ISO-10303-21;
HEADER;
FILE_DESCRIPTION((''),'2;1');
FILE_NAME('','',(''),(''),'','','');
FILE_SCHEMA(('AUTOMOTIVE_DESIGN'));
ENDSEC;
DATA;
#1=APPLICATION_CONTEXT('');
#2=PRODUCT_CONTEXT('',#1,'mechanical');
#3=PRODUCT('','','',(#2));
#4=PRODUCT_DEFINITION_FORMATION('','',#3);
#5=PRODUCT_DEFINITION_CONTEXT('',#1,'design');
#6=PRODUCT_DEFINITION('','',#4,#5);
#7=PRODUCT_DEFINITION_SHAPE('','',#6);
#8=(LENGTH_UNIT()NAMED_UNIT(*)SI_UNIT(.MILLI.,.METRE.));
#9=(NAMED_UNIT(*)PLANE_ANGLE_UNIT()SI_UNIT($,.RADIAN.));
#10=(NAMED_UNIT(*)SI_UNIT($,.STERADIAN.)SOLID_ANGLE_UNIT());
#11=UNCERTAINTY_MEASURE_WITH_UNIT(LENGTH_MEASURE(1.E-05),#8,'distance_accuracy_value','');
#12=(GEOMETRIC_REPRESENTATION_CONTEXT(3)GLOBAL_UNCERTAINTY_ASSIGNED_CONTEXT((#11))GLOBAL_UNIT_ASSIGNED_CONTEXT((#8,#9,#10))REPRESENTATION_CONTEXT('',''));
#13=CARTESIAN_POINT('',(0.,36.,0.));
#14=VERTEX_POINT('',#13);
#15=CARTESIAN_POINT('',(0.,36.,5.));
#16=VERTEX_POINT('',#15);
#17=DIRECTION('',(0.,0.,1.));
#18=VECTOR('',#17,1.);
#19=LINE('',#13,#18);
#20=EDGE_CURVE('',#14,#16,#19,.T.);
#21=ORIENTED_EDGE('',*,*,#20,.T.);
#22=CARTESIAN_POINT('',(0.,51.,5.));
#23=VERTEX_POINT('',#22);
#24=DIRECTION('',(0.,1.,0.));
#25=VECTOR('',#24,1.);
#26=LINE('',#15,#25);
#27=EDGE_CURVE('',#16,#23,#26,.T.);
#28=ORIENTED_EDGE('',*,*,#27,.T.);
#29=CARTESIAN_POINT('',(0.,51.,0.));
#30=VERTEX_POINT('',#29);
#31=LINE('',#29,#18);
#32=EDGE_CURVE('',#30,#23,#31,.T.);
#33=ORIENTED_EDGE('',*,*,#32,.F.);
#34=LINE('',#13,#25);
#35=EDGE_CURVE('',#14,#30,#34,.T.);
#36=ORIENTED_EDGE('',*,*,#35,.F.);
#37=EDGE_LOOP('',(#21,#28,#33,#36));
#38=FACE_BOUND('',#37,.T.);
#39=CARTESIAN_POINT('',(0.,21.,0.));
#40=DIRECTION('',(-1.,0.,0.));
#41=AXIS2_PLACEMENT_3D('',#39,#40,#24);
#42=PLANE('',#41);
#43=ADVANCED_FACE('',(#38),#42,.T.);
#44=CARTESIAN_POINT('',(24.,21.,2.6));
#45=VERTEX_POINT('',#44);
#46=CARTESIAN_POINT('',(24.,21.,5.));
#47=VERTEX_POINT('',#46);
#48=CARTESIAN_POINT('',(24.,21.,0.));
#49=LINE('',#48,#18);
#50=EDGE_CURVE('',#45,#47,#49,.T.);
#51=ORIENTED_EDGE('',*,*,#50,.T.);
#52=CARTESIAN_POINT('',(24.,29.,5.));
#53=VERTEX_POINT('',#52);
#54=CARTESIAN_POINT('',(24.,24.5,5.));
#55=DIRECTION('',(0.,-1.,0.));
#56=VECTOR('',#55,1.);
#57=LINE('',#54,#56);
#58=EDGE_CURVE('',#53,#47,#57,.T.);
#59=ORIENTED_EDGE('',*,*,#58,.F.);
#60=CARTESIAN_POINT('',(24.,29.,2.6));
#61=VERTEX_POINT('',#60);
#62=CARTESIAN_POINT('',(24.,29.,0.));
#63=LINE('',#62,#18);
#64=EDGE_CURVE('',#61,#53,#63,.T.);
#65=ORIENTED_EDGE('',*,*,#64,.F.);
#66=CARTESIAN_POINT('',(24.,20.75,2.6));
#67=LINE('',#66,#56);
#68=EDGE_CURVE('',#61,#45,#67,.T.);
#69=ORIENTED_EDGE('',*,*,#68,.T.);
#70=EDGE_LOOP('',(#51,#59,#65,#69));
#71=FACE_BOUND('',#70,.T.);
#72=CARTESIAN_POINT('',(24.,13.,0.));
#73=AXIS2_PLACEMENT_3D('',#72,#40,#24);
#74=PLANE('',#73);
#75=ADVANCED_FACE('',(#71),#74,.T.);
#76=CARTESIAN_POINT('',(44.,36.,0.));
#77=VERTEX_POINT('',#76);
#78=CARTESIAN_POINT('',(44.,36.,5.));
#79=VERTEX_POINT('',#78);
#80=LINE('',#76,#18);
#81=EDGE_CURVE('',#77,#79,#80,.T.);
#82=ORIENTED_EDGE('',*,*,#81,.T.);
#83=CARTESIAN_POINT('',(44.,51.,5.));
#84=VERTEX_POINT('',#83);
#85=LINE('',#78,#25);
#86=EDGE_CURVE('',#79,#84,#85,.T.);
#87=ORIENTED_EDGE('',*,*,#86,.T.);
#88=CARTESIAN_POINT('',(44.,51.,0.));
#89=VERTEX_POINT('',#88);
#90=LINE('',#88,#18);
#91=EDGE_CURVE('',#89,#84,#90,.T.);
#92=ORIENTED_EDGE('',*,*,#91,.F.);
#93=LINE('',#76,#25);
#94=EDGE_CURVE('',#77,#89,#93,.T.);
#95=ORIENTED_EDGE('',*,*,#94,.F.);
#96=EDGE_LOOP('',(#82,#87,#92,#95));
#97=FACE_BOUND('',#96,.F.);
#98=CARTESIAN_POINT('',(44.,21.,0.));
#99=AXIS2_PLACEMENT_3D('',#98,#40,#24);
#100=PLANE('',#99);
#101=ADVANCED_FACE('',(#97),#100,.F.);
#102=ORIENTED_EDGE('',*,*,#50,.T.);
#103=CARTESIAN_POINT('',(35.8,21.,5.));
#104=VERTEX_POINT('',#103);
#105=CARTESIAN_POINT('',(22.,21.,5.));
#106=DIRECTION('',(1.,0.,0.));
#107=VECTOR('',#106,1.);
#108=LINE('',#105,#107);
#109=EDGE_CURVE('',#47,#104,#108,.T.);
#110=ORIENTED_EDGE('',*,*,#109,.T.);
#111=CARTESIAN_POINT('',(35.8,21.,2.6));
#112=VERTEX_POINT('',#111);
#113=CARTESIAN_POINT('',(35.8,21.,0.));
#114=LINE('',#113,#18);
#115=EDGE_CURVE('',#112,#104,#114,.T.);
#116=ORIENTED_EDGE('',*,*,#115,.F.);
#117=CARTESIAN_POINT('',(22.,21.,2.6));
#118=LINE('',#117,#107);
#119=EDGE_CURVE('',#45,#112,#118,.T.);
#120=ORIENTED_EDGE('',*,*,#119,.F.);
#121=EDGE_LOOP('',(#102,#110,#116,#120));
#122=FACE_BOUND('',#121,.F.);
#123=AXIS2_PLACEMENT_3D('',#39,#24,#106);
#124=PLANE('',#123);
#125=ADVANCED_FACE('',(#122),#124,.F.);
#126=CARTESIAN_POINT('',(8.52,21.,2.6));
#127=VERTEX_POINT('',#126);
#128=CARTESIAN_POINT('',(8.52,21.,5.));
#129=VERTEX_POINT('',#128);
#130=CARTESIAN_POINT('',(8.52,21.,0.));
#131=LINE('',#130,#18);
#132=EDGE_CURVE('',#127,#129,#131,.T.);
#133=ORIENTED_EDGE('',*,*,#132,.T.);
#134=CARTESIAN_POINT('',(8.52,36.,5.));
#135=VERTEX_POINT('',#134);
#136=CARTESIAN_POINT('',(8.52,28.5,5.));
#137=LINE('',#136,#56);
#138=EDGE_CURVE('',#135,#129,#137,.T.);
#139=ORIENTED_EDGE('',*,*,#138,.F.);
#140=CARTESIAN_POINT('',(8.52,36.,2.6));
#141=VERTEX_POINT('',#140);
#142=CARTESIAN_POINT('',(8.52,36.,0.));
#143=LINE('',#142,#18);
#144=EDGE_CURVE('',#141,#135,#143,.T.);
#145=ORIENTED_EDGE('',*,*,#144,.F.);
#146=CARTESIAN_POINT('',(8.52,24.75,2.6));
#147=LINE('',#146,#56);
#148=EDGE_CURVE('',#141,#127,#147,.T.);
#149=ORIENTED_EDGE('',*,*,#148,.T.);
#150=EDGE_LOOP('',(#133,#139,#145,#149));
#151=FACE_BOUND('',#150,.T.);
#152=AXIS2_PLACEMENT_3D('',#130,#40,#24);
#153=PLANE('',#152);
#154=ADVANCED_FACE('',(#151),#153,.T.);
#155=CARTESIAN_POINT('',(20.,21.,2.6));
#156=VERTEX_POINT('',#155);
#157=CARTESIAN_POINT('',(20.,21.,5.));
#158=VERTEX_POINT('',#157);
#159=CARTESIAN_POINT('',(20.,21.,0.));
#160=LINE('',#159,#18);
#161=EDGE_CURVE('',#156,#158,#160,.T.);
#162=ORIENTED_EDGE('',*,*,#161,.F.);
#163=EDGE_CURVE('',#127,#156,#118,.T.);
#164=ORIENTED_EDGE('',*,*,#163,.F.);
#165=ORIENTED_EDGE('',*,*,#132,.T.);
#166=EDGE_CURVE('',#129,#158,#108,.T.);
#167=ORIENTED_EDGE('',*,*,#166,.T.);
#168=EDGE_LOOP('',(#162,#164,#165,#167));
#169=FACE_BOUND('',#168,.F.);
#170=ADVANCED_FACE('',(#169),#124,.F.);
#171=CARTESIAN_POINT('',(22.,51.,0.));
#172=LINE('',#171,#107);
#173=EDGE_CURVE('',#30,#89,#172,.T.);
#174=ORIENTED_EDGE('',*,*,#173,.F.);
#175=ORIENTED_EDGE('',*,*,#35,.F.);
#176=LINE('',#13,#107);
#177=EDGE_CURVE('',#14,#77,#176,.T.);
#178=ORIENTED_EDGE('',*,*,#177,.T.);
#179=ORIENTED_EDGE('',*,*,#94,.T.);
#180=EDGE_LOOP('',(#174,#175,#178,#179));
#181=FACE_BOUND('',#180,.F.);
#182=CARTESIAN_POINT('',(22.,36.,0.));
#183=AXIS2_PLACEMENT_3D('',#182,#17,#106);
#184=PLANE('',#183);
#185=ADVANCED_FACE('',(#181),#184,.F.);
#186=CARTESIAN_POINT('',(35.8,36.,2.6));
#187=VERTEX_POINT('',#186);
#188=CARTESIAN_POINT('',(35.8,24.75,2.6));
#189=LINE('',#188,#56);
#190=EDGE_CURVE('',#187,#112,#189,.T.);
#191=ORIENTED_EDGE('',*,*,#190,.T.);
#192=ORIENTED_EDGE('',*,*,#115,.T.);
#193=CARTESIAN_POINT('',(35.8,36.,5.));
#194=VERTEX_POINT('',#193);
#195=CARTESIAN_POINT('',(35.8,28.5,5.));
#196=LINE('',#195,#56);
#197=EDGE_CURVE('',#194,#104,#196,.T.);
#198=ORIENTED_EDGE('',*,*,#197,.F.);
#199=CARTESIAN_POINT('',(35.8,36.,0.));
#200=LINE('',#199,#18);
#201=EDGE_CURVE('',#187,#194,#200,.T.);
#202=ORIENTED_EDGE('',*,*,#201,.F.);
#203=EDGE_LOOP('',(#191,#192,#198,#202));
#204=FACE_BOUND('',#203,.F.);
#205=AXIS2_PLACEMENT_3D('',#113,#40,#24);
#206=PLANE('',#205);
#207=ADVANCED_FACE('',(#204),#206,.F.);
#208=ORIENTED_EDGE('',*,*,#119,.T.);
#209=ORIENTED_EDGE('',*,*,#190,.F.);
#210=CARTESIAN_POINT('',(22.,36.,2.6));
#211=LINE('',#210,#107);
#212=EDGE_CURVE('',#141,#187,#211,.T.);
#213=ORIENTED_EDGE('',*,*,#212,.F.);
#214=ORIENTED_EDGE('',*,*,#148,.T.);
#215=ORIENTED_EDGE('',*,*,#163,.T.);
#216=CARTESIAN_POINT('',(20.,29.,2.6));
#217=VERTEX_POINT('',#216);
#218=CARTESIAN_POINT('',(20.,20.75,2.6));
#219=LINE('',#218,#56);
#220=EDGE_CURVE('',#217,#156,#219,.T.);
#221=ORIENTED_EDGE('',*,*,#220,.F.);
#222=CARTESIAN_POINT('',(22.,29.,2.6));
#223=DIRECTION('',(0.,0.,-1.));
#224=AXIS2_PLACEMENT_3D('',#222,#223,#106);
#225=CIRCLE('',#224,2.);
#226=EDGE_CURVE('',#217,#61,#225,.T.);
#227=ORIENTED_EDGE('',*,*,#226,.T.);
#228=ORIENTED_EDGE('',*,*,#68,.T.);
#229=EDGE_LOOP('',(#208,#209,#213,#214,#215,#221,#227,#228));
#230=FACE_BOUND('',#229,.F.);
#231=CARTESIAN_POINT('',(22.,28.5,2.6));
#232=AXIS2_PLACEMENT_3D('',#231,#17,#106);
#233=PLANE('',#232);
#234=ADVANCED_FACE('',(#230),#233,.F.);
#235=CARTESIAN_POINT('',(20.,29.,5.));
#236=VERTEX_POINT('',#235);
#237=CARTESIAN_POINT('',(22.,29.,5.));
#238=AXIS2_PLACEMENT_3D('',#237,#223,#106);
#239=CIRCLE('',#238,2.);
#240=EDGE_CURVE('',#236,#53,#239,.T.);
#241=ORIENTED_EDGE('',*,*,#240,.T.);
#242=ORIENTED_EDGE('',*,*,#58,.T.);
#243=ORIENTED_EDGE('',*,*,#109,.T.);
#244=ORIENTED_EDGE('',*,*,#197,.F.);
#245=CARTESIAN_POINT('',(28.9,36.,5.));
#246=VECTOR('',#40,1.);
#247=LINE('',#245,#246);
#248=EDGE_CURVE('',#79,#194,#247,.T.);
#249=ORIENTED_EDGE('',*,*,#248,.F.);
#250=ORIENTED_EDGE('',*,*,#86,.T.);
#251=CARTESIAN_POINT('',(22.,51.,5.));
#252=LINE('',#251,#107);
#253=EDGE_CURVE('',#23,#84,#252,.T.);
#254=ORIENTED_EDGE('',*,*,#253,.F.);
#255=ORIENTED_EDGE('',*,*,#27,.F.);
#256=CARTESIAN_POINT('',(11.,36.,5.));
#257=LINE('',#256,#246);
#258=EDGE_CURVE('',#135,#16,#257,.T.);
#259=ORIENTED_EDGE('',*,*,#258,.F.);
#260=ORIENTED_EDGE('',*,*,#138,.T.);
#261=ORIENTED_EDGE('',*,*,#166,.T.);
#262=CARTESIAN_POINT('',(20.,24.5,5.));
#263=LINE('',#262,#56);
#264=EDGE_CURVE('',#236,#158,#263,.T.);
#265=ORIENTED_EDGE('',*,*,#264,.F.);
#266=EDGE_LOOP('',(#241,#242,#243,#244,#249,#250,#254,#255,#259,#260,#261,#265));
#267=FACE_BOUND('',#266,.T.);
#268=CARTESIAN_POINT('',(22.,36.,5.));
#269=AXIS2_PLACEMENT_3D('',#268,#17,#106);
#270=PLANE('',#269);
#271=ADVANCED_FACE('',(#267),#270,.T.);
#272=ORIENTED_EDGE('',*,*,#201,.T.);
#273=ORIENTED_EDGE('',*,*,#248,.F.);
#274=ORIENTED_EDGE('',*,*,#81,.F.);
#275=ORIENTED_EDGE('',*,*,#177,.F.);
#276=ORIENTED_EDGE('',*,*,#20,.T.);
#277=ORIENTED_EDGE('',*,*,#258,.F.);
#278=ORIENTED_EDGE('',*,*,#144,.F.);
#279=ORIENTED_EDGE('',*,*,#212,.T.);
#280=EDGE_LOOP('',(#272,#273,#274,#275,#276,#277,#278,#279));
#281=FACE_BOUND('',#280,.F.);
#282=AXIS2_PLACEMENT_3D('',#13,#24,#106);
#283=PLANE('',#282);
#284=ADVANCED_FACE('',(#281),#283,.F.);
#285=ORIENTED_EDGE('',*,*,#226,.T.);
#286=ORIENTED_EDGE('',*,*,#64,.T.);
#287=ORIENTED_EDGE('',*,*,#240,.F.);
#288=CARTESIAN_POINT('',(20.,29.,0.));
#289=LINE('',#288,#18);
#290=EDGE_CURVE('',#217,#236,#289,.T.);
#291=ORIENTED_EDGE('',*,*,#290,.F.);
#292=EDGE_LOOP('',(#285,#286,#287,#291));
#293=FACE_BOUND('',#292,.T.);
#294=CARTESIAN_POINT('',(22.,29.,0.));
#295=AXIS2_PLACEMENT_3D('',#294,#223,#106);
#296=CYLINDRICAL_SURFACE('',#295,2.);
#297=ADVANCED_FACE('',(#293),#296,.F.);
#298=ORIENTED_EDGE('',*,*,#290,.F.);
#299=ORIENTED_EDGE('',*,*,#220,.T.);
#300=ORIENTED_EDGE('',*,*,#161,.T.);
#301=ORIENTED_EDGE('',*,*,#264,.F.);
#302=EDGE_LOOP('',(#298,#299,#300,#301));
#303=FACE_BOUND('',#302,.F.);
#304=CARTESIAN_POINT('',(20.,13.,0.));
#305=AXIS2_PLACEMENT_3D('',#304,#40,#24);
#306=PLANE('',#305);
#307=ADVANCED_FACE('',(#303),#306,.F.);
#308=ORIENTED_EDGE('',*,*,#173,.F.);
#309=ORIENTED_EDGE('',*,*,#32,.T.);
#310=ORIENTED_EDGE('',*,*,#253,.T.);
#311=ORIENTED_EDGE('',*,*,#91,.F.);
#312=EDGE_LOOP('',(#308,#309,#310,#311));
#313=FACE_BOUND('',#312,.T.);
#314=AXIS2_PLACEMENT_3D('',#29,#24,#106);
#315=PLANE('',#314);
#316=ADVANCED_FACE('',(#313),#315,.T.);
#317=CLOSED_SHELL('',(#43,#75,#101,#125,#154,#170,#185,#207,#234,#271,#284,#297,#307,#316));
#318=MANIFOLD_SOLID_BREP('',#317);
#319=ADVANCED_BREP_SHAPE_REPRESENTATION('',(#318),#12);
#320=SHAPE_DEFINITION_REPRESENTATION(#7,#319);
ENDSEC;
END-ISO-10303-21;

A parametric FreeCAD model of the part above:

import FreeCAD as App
import Part
import Sketcher

V = App.Vector
Q = App.Units.Quantity

doc = App.newDocument("Part")
body = doc.addObject("PartDesign::Body", "Body")

sketch1 = body.newObject("Sketcher::SketchObject", "Sketch")
sketch1.AttachmentSupport = (doc.getObject("XY_Plane"), [""])
sketch1.MapMode = "FlatFace"
sketch1.addGeometry(Part.LineSegment(V(20, 8, 0), V(20, -8, 0)), False)
sketch1.addGeometry(Part.LineSegment(V(20, -8, 0), V(24, -8, 0)), False)
sketch1.addGeometry(Part.LineSegment(V(24, -8, 0), V(24, 8, 0)), False)
sketch1.addGeometry(Part.LineSegment(V(24, 8, 0), V(20, 8, 0)), False)
sketch1.addConstraint(Sketcher.Constraint("Coincident", 0, 2, 1, 1))
sketch1.addConstraint(Sketcher.Constraint("Coincident", 1, 2, 2, 1))
sketch1.addConstraint(Sketcher.Constraint("Coincident", 2, 2, 3, 1))
sketch1.addConstraint(Sketcher.Constraint("Coincident", 3, 2, 0, 1))
sketch1.addConstraint(Sketcher.Constraint("Vertical", 0))
sketch1.addConstraint(Sketcher.Constraint("Horizontal", 1))
sketch1.addConstraint(Sketcher.Constraint("Vertical", 2))
sketch1.addConstraint(Sketcher.Constraint("Horizontal", 3))
sketch1.addConstraint(Sketcher.Constraint("DistanceX", 1, 1, 1, 2, Q("4 mm")))
sketch1.addConstraint(Sketcher.Constraint("DistanceY", 0, 2, 0, 1, Q("16 mm")))
sketch1.addConstraint(Sketcher.Constraint("DistanceX", -1, 1, 0, 2, Q("20 mm")))
sketch1.addConstraint(Sketcher.Constraint("DistanceY", 0, 2, -1, 1, Q("8 mm")))
pad1 = body.newObject("PartDesign::Pad", "Pad")
pad1.Profile = sketch1
pad1.Length = 10
body2 = doc.addObject("PartDesign::Body", "Body001")

sketch2 = body2.newObject("Sketcher::SketchObject", "Sketch001")
sketch2.AttachmentSupport = (doc.getObject("XY_Plane001"), [""])
sketch2.MapMode = "FlatFace"
sketch2.addGeometry(Part.Circle(V(22, 8, 0), V(0, 0, 1), 2), False)
sketch2.addConstraint(Sketcher.Constraint("Diameter", 0, Q("4 mm")))
sketch2.addConstraint(Sketcher.Constraint("DistanceX", -1, 1, 0, 3, Q("22 mm")))
sketch2.addConstraint(Sketcher.Constraint("DistanceY", -1, 1, 0, 3, Q("8 mm")))
pad2 = body2.newObject("PartDesign::Pad", "Pad001")
pad2.Profile = sketch2
pad2.Length = 10
doc.recompute()

boolean = body2.newObject("PartDesign::Boolean", "Boolean")
boolean.Type = "Fuse"
boolean.addObjects([body])
body3 = doc.addObject("PartDesign::Body", "Body002")

sketch3 = body3.newObject("Sketcher::SketchObject", "Sketch002")
sketch3.AttachmentSupport = (doc.getObject("XY_Plane002"), [""])
sketch3.MapMode = "FlatFace"
sketch3.addGeometry(Part.LineSegment(V(36, 15, 0), V(36, 0, 0)), False)
sketch3.addGeometry(Part.LineSegment(V(36, 0, 0), V(44, 0, 0)), False)
sketch3.addGeometry(Part.LineSegment(V(44, 0, 0), V(44, 15, 0)), False)
sketch3.addGeometry(Part.LineSegment(V(44, 15, 0), V(36, 15, 0)), False)
sketch3.addConstraint(Sketcher.Constraint("Coincident", 0, 2, 1, 1))
sketch3.addConstraint(Sketcher.Constraint("Coincident", 1, 2, 2, 1))
sketch3.addConstraint(Sketcher.Constraint("Coincident", 2, 2, 3, 1))
sketch3.addConstraint(Sketcher.Constraint("Coincident", 3, 2, 0, 1))
sketch3.addConstraint(Sketcher.Constraint("Vertical", 0))
sketch3.addConstraint(Sketcher.Constraint("Horizontal", 1))
sketch3.addConstraint(Sketcher.Constraint("Vertical", 2))
sketch3.addConstraint(Sketcher.Constraint("Horizontal", 3))
sketch3.addConstraint(Sketcher.Constraint("PointOnObject", 0, 2, -1))
sketch3.addConstraint(Sketcher.Constraint("DistanceY", 0, 2, 0, 1, Q("15 mm")))
sketch3.addConstraint(Sketcher.Constraint("DistanceX", 1, 1, 1, 2, Q("8.2 mm")))
sketch3.addConstraint(Sketcher.Constraint("DistanceX", -1, 1, 1, 2, Q("44 mm")))
pad3 = body3.newObject("PartDesign::Pad", "Pad002")
pad3.Profile = sketch3
pad3.Length = 10
body4 = doc.addObject("PartDesign::Body", "Body003")

sketch4 = body4.newObject("Sketcher::SketchObject", "Sketch003")
sketch4.AttachmentSupport = (doc.getObject("XY_Plane003"), [""])
sketch4.MapMode = "FlatFace"
sketch4.addGeometry(Part.LineSegment(V(0, 15, 0), V(0, 0, 0)), False)
sketch4.addGeometry(Part.LineSegment(V(0, 0, 0), V(9, 0, 0)), False)
sketch4.addGeometry(Part.LineSegment(V(9, 0, 0), V(9, 15, 0)), False)
sketch4.addGeometry(Part.LineSegment(V(9, 15, 0), V(0, 15, 0)), False)
sketch4.addConstraint(Sketcher.Constraint("Coincident", 0, 2, 1, 1))
sketch4.addConstraint(Sketcher.Constraint("Coincident", 1, 2, 2, 1))
sketch4.addConstraint(Sketcher.Constraint("Coincident", 2, 2, 3, 1))
sketch4.addConstraint(Sketcher.Constraint("Coincident", 3, 2, 0, 1))
sketch4.addConstraint(Sketcher.Constraint("Vertical", 0))
sketch4.addConstraint(Sketcher.Constraint("Horizontal", 1))
sketch4.addConstraint(Sketcher.Constraint("Vertical", 2))
sketch4.addConstraint(Sketcher.Constraint("Horizontal", 3))
sketch4.addConstraint(Sketcher.Constraint("Coincident", 0, 2, -1, 1))
sketch4.addConstraint(Sketcher.Constraint("DistanceY", 0, 2, 0, 1, Q("15 mm")))
sketch4.addConstraint(Sketcher.Constraint("DistanceX", 1, 1, 1, 2, Q("8.52 mm")))
pad4 = body4.newObject("PartDesign::Pad", "Pad003")
pad4.Profile = sketch4
pad4.Length = 10
body5 = doc.addObject("PartDesign::Body", "Body004")

sketch5 = body5.newObject("Sketcher::SketchObject", "Sketch004")
sketch5.AttachmentSupport = (doc.getObject("XY_Plane004"), [""])
sketch5.MapMode = "FlatFace"
sketch5.addGeometry(Part.LineSegment(V(0, 15, 0), V(0, 0, 0)), False)
sketch5.addGeometry(Part.LineSegment(V(0, 0, 0), V(44, 0, 0)), False)
sketch5.addGeometry(Part.LineSegment(V(44, 0, 0), V(44, 15, 0)), False)
sketch5.addGeometry(Part.LineSegment(V(44, 15, 0), V(0, 15, 0)), False)
sketch5.addConstraint(Sketcher.Constraint("Coincident", 0, 2, 1, 1))
sketch5.addConstraint(Sketcher.Constraint("Coincident", 1, 2, 2, 1))
sketch5.addConstraint(Sketcher.Constraint("Coincident", 2, 2, 3, 1))
sketch5.addConstraint(Sketcher.Constraint("Coincident", 3, 2, 0, 1))
sketch5.addConstraint(Sketcher.Constraint("Vertical", 0))
sketch5.addConstraint(Sketcher.Constraint("Horizontal", 1))
sketch5.addConstraint(Sketcher.Constraint("Vertical", 2))
sketch5.addConstraint(Sketcher.Constraint("Horizontal", 3))
sketch5.addConstraint(Sketcher.Constraint("Coincident", 0, 2, -1, 1))
sketch5.addConstraint(Sketcher.Constraint("DistanceX", 1, 1, 1, 2, Q("44 mm")))
sketch5.addConstraint(Sketcher.Constraint("DistanceY", 0, 2, 0, 1, Q("15 mm")))
pad5 = body5.newObject("PartDesign::Pad", "Pad004")
pad5.Profile = sketch5
pad5.Length = 2.6
body6 = doc.addObject("PartDesign::Body", "Body005")

sketch6 = body6.newObject("Sketcher::SketchObject", "Sketch005")
sketch6.AttachmentSupport = (doc.getObject("XY_Plane005"), [""])
sketch6.MapMode = "FlatFace"
sketch6.addGeometry(Part.LineSegment(V(0, 30, 0), V(0, 0, 0)), False)
sketch6.addGeometry(Part.LineSegment(V(0, 0, 0), V(44, 0, 0)), False)
sketch6.addGeometry(Part.LineSegment(V(44, 0, 0), V(44, 30, 0)), False)
sketch6.addGeometry(Part.LineSegment(V(44, 30, 0), V(0, 30, 0)), False)
sketch6.addConstraint(Sketcher.Constraint("Coincident", 0, 2, 1, 1))
sketch6.addConstraint(Sketcher.Constraint("Coincident", 1, 2, 2, 1))
sketch6.addConstraint(Sketcher.Constraint("Coincident", 2, 2, 3, 1))
sketch6.addConstraint(Sketcher.Constraint("Coincident", 3, 2, 0, 1))
sketch6.addConstraint(Sketcher.Constraint("Vertical", 0))
sketch6.addConstraint(Sketcher.Constraint("Horizontal", 1))
sketch6.addConstraint(Sketcher.Constraint("Vertical", 2))
sketch6.addConstraint(Sketcher.Constraint("Horizontal", 3))
sketch6.addConstraint(Sketcher.Constraint("Coincident", 0, 2, -1, 1))
sketch6.addConstraint(Sketcher.Constraint("DistanceX", 1, 1, 1, 2, Q("44 mm")))
sketch6.addConstraint(Sketcher.Constraint("DistanceY", 0, 2, 0, 1, Q("30 mm")))
pad6 = body6.newObject("PartDesign::Pad", "Pad005")
pad6.Profile = sketch6
pad6.Length = 5
doc.recompute()

boolean2 = body6.newObject("PartDesign::Boolean", "Boolean001")
boolean2.Type = "Cut"
boolean2.addObjects([body5])
doc.recompute()

boolean3 = body6.newObject("PartDesign::Boolean", "Boolean002")
boolean3.Type = "Cut"
boolean3.addObjects([body4])
doc.recompute()

boolean4 = body6.newObject("PartDesign::Boolean", "Boolean003")
boolean4.Type = "Cut"
boolean4.addObjects([body3])
doc.recompute()

boolean5 = body6.newObject("PartDesign::Boolean", "Boolean004")
boolean5.Type = "Cut"
boolean5.addObjects([body2])
body7 = doc.addObject("PartDesign::Body", "Body006")
doc.recompute()

body6.Placement = App.Placement(V(0, 21, 0), App.Rotation(V(0, 0, 1), 0))
boolean6 = body7.newObject("PartDesign::Boolean", "Boolean005")
boolean6.Type = "Fuse"
boolean6.addObjects([body6])

doc.recompute()
